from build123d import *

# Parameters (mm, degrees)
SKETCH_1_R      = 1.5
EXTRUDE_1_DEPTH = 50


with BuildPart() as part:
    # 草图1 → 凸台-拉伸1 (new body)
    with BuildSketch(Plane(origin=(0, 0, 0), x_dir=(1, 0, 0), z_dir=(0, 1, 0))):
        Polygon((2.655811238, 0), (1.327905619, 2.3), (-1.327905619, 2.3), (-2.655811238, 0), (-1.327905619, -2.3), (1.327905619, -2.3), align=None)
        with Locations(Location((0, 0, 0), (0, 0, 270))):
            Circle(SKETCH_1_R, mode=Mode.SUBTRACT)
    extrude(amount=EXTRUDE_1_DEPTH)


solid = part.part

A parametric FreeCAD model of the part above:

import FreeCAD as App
import Part
import Sketcher

V = App.Vector
Q = App.Units.Quantity


def add_polygon(sketch, points):
    """Adds a closed chain of lines whose ends are joined by coincident constraints."""
    first, n = sketch.GeometryCount, len(points)
    for a, b in zip(points, points[1:] + points[:1]):
        sketch.addGeometry(Part.LineSegment(App.Vector(*a, 0), App.Vector(*b, 0)), False)
    for i in range(n):
        sketch.addConstraint(Sketcher.Constraint("Coincident", first + i, 2, first + (i + 1) % n, 1))

doc = App.newDocument("Part")
body = doc.addObject("PartDesign::Body", "Body")

# Sketch on XZ plane
sketch1 = body.newObject("Sketcher::SketchObject", "Sketch")
sketch1.AttachmentSupport = (doc.getObject("XZ_Plane"), [""])
sketch1.MapMode = "FlatFace"
add_polygon(sketch1, [(2.7, 0), (1.3, -2.3), (-1.3, -2.3), (-2.7, 0), (-1.3, 2.3), (1.3, 2.3)])  # lines 0-5
sketch1.addGeometry(Part.Circle(V(0, 0, 0), V(0, 0, 1), 1.5), False)  # 6
sketch1.addConstraint(Sketcher.Constraint("Horizontal", 1))
sketch1.addConstraint(Sketcher.Constraint("Horizontal", 4))
sketch1.addConstraint(Sketcher.Constraint("Coincident", 6, 3, -1, 1))
sketch1.addConstraint(Sketcher.Constraint("Symmetric", 0, 2, 3, 2, -1, 1))
sketch1.addConstraint(Sketcher.Constraint("Symmetric", 2, 2, 5, 2, -1, 1))
sketch1.addConstraint(Sketcher.Constraint("PointOnObject", 2, 2, -1))
sketch1.addConstraint(Sketcher.Constraint("Parallel", 2, 5))
sketch1.addConstraint(Sketcher.Constraint("Vertical", 1, 2, 3, 2))
sketch1.addConstraint(Sketcher.Constraint("Diameter", 6, Q("3 mm")))
sketch1.addConstraint(Sketcher.Constraint("Angle", 0, Q("-120 deg")))
sketch1.addConstraint(Sketcher.Constraint("DistanceY", 0, 2, -1, 1, Q("2.3 mm")))
sketch1.addConstraint(Sketcher.Constraint("DistanceX", 1, 2, 1, 1, Q("2.655811 mm")))
pad1 = body.newObject("PartDesign::Pad", "Pad")
pad1.Profile = sketch1
pad1.Length = 50
pad1.Reversed = True

doc.recompute()
